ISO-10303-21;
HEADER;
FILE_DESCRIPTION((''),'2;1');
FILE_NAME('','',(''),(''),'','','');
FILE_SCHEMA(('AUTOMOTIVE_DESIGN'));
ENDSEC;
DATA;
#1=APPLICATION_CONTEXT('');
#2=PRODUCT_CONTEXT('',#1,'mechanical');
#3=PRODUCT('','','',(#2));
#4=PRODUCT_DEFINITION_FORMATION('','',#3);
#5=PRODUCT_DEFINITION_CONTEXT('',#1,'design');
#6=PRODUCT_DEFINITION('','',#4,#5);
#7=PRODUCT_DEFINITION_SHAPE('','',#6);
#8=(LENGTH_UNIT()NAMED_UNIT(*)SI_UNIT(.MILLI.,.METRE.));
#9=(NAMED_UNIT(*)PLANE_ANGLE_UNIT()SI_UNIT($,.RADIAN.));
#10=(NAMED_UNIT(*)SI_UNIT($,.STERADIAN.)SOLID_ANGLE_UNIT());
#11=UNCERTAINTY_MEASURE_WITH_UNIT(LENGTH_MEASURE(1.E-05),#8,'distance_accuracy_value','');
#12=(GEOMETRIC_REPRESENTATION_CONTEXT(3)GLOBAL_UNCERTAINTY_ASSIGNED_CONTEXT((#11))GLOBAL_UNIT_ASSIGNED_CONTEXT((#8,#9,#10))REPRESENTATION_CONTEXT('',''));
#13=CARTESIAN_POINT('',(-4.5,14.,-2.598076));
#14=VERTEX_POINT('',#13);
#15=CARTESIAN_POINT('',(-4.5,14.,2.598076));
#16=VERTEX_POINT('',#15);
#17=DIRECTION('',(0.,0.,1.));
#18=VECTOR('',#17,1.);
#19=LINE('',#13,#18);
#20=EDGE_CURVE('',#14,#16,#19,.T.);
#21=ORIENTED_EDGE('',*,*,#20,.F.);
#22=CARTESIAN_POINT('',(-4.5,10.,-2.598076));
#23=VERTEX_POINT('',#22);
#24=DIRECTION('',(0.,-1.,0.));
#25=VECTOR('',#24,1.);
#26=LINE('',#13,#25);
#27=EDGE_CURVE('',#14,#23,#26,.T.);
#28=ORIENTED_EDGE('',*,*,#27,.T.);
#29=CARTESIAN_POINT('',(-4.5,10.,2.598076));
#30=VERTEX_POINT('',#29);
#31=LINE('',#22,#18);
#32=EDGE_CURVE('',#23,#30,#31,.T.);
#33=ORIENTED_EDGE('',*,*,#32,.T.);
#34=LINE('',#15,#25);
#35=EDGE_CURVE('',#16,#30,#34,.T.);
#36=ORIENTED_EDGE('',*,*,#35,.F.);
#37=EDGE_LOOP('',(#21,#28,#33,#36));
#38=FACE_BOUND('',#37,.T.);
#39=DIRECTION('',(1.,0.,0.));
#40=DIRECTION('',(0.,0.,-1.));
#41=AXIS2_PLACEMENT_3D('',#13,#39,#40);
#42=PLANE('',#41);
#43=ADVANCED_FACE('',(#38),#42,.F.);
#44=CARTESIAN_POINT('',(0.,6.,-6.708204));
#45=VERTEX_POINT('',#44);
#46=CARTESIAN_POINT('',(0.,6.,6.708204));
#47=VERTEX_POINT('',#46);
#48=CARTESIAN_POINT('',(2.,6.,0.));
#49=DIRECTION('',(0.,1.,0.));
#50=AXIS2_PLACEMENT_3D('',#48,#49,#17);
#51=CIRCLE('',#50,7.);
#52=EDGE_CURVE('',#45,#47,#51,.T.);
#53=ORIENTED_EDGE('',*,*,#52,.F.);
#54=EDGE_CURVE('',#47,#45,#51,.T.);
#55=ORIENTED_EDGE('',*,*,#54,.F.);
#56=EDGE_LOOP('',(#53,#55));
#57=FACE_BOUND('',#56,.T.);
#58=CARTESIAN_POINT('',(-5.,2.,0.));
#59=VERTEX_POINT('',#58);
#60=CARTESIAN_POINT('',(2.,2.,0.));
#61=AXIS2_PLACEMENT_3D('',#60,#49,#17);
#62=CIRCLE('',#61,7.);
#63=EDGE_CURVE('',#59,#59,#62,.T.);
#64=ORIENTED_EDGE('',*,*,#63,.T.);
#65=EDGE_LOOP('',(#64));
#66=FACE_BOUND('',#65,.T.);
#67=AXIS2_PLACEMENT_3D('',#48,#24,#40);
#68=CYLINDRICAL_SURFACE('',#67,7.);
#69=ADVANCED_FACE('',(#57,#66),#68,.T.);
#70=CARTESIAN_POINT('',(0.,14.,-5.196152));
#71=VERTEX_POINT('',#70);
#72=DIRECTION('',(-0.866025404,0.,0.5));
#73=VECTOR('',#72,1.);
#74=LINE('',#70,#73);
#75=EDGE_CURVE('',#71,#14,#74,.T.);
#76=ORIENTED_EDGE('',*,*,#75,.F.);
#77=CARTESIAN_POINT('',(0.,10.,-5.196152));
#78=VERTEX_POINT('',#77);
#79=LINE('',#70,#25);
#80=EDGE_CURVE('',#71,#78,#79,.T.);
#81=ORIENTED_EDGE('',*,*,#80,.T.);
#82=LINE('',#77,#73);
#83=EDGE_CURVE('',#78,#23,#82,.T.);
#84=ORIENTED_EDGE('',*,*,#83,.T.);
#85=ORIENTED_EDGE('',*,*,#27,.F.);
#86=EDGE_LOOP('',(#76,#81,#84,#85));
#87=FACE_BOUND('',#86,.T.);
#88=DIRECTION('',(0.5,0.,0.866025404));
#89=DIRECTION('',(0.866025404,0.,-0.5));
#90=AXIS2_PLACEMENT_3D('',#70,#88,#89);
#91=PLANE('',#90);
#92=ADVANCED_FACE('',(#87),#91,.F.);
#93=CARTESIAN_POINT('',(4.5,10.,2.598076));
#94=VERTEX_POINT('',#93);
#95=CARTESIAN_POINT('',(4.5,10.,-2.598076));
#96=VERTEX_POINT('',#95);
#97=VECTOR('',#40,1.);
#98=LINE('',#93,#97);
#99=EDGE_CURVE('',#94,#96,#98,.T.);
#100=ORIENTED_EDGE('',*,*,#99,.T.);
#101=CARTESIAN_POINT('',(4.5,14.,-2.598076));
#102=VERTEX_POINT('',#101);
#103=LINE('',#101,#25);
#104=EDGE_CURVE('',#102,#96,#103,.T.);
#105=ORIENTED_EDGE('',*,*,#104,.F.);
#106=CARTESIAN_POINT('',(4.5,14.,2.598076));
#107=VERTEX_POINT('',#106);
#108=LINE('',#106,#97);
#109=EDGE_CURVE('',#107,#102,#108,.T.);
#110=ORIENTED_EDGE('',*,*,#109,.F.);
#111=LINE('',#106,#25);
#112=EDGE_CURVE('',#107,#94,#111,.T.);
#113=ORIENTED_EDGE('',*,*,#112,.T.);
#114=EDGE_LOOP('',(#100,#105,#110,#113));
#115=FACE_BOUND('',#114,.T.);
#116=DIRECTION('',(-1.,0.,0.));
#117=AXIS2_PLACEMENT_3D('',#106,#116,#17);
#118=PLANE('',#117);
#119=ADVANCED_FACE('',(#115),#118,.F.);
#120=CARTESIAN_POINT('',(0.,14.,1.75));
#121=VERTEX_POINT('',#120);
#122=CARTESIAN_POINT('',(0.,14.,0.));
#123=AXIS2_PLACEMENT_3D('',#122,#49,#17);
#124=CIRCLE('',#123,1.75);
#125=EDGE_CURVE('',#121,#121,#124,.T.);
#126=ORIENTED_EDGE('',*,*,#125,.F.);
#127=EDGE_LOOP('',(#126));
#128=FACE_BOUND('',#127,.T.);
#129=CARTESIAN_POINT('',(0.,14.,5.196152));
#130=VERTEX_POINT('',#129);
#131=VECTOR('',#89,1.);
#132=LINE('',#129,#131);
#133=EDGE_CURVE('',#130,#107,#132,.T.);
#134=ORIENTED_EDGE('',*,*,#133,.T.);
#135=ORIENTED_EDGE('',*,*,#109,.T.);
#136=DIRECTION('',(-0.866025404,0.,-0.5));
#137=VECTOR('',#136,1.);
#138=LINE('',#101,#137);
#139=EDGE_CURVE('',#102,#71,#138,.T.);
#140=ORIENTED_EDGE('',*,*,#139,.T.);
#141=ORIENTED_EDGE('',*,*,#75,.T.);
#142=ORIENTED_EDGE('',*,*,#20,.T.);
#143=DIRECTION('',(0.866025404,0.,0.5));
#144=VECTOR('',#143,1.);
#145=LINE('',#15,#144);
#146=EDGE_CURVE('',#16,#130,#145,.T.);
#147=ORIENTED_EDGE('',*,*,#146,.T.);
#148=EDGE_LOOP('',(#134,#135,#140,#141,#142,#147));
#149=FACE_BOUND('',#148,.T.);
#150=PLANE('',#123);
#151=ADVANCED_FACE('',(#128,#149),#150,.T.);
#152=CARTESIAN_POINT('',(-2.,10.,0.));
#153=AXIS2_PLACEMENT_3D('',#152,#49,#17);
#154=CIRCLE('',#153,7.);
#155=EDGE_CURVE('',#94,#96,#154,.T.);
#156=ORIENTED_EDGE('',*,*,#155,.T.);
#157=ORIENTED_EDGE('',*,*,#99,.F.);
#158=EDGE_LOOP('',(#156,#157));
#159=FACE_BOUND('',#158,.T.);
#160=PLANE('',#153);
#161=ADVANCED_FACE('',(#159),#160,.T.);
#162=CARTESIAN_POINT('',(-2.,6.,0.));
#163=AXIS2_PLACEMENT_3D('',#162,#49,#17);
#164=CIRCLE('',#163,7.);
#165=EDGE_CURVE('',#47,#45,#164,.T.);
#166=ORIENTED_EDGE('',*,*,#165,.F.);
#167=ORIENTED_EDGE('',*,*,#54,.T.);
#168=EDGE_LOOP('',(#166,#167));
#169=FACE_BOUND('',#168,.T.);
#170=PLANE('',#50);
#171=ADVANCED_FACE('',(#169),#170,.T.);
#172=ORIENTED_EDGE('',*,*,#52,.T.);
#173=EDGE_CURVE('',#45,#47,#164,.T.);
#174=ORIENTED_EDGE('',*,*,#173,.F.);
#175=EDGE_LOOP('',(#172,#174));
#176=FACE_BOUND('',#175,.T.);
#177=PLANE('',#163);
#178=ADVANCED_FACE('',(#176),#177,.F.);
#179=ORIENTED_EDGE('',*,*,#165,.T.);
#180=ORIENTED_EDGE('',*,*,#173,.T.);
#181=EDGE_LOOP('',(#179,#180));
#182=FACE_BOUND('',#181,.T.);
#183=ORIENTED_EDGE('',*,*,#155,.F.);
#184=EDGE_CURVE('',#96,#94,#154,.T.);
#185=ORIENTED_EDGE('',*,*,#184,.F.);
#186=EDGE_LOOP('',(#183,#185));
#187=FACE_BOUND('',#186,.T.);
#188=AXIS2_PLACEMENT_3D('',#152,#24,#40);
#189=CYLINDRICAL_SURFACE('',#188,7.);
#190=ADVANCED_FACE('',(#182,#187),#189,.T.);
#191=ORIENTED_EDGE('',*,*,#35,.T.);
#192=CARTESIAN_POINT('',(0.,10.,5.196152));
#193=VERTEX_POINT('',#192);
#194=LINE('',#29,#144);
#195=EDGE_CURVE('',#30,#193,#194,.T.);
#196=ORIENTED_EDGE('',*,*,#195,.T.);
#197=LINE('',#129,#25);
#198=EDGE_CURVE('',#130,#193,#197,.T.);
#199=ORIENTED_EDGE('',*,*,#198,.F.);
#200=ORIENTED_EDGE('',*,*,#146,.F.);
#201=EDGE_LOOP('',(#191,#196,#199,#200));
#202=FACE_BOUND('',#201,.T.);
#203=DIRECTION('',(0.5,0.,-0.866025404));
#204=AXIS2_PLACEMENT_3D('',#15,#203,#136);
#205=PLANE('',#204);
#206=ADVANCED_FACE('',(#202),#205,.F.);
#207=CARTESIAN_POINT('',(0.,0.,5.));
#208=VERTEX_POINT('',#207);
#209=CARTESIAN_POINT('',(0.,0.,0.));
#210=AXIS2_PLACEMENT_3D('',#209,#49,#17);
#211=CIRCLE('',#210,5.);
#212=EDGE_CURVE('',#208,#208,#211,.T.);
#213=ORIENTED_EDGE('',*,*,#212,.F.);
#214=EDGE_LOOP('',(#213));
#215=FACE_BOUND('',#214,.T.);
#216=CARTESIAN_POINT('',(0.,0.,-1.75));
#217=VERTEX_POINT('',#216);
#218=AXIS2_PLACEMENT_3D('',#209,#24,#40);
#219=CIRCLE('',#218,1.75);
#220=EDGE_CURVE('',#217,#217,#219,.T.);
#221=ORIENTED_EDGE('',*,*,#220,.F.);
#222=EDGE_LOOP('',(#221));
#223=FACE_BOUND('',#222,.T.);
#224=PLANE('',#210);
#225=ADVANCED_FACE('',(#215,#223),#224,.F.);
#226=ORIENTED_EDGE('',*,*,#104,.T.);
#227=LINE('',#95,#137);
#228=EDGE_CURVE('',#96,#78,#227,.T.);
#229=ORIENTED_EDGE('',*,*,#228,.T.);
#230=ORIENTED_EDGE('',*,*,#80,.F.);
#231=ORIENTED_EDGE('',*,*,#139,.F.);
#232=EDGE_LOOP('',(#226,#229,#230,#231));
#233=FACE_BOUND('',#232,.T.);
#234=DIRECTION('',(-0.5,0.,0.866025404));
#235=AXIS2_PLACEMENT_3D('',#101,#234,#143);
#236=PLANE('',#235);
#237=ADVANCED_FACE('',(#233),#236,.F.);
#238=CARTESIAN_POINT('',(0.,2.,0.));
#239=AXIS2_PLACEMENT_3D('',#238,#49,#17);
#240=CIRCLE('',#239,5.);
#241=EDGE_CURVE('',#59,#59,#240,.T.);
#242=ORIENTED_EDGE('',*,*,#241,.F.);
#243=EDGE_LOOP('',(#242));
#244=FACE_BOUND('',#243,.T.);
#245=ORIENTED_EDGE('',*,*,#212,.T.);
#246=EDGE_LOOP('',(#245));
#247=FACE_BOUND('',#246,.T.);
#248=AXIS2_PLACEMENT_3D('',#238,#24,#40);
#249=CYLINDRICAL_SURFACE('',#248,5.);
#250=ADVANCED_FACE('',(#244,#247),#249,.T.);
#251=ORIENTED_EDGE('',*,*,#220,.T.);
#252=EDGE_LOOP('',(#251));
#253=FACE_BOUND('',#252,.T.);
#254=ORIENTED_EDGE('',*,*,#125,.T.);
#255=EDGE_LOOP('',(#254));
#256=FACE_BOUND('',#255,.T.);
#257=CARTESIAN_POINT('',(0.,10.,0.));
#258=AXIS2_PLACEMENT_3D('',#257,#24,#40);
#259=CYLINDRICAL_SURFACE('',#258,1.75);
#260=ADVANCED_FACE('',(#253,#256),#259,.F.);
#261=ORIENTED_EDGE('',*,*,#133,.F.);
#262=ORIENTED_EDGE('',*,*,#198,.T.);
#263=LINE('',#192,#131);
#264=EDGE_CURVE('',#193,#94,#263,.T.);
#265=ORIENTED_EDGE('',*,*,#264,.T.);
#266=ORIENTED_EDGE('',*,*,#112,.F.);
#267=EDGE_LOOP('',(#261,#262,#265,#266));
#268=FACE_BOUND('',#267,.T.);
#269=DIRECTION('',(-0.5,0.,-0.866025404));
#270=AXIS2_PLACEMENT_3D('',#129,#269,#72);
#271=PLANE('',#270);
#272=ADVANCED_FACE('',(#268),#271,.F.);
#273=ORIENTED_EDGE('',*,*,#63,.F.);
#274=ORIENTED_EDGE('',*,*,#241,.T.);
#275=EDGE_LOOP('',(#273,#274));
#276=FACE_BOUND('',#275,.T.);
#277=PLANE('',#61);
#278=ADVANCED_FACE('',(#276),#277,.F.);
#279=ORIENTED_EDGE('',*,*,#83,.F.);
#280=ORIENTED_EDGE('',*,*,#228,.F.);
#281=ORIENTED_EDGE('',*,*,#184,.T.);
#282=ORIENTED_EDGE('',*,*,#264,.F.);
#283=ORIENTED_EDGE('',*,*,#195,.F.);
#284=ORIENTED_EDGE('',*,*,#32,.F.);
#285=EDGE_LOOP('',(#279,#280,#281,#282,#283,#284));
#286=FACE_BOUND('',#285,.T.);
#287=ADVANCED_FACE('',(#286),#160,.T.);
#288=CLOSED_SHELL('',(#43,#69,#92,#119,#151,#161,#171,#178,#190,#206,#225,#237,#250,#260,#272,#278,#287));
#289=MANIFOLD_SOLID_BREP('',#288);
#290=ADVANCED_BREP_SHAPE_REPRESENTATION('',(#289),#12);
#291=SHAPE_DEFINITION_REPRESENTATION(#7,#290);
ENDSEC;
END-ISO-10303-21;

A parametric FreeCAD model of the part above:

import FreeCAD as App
import Part
import Sketcher

V = App.Vector
Q = App.Units.Quantity


def add_polygon(sketch, points):
    """Adds a closed chain of lines whose ends are joined by coincident constraints."""
    first, n = sketch.GeometryCount, len(points)
    for a, b in zip(points, points[1:] + points[:1]):
        sketch.addGeometry(Part.LineSegment(App.Vector(*a, 0), App.Vector(*b, 0)), False)
    for i in range(n):
        sketch.addConstraint(Sketcher.Constraint("Coincident", first + i, 2, first + (i + 1) % n, 1))

doc = App.newDocument("Part")
body = doc.addObject("PartDesign::Body", "Body")

sketch1 = doc.addObject("Sketcher::SketchObject", "Sketch")
body.addObject(sketch1)
sketch1.AttachmentSupport = (doc.XZ_Plane, [""])
sketch1.MapMode = "FlatFace"
sketch1.addGeometry(Part.Circle(V(0, 0, 0), V(0, 0, 1), 5), False)
sketch1.addConstraint([
    Sketcher.Constraint("Coincident", 0, 3, -1, 1),
    Sketcher.Constraint("Diameter", 0, 10.0),
])
pad1 = doc.addObject("PartDesign::Pad", "Pad")
body.addObject(pad1)
pad1.Profile = sketch1
pad1.Length = 2
pad1.Reversed = True

sketch2 = doc.addObject("Sketcher::SketchObject", "Sketch001")
body.addObject(sketch2)
sketch2.AttachmentSupport = (doc.XZ_Plane, [""])
sketch2.MapMode = "FlatFace"
sketch2.AttachmentOffset = App.Placement(V(0, 0, -2), App.Rotation())
sketch2.addGeometry(Part.Circle(V(2, 0, 0), V(0, 0, 1), 7), False)
sketch2.addConstraint([
    Sketcher.Constraint("PointOnObject", 0, 3, -1),
    Sketcher.Constraint("Diameter", 0, 14.0),
    Sketcher.Constraint("DistanceX", -1, 1, 0, 3, 2.0),
])
pad2 = doc.addObject("PartDesign::Pad", "Pad001")
body.addObject(pad2)
pad2.Profile = sketch2
pad2.Length = 4
pad2.Reversed = True

sketch3 = doc.addObject("Sketcher::SketchObject", "Sketch002")
body.addObject(sketch3)
sketch3.AttachmentSupport = (doc.XZ_Plane, [""])
sketch3.MapMode = "FlatFace"
sketch3.AttachmentOffset = App.Placement(V(0, 0, -6), App.Rotation())
sketch3.addGeometry(Part.Circle(V(-2, 0, 0), V(0, 0, 1), 7), False)
sketch3.addConstraint([
    Sketcher.Constraint("PointOnObject", 0, 3, -1),
    Sketcher.Constraint("Diameter", 0, 14.0),
    Sketcher.Constraint("DistanceX", 0, 3, -1, 1, 2.0),
])
pad3 = doc.addObject("PartDesign::Pad", "Pad002")
body.addObject(pad3)
pad3.Profile = sketch3
pad3.Length = 4
pad3.Reversed = True

sketch4 = doc.addObject("Sketcher::SketchObject", "Sketch003")
body.addObject(sketch4)
sketch4.AttachmentSupport = (doc.XZ_Plane, [""])
sketch4.MapMode = "FlatFace"
sketch4.addGeometry(Part.Circle(V(0, 0, 0), V(0, 0, 1), 1.75), False)
sketch4.addConstraint([
    Sketcher.Constraint("Coincident", 0, 3, -1, 1),
    Sketcher.Constraint("Diameter", 0, 3.5),
])
pocket1 = doc.addObject("PartDesign::Pocket", "Pocket")
body.addObject(pocket1)
pocket1.Profile = sketch4
pocket1.Type = "ThroughAll"

sketch5 = doc.addObject("Sketcher::SketchObject", "Sketch004")
body.addObject(sketch5)
sketch5.AttachmentSupport = (doc.XZ_Plane, [""])
sketch5.MapMode = "FlatFace"
sketch5.AttachmentOffset = App.Placement(V(0, 0, -10), App.Rotation())
add_polygon(sketch5, [(-4.5, -2.598076), (-4.5, 2.598076), (0, 5.196152), (4.5, 2.598076), (4.5, -2.598076), (0, -5.196152)])
sketch5.addGeometry(Part.Circle(V(0, 0, 0), V(0, 0, 1), 1.75), False)
sketch5.addConstraint([
    Sketcher.Constraint("Vertical", 0),
    Sketcher.Constraint("Vertical", 3),
    Sketcher.Constraint("Coincident", 6, 3, -1, 1),
    Sketcher.Constraint("Symmetric", 0, 2, 3, 2, -1, 1),
    Sketcher.Constraint("Symmetric", 1, 2, 4, 2, -1, 1),
    Sketcher.Constraint("PointOnObject", 1, 2, -2),
    Sketcher.Constraint("Parallel", 2, 5),
    Sketcher.Constraint("Horizontal", 0, 2, 2, 2),
    Sketcher.Constraint("Diameter", 6, 3.5),
    Sketcher.Constraint("Angle", 1, Q("30 deg")),
    Sketcher.Constraint("DistanceX", 0, 2, 2, 2, 9.0),
    Sketcher.Constraint("DistanceY", 0, 1, 0, 2, 5.196152),
])
pad4 = doc.addObject("PartDesign::Pad", "Pad003")
body.addObject(pad4)
pad4.Profile = sketch5
pad4.Length = 4
pad4.Reversed = True

doc.recompute()
